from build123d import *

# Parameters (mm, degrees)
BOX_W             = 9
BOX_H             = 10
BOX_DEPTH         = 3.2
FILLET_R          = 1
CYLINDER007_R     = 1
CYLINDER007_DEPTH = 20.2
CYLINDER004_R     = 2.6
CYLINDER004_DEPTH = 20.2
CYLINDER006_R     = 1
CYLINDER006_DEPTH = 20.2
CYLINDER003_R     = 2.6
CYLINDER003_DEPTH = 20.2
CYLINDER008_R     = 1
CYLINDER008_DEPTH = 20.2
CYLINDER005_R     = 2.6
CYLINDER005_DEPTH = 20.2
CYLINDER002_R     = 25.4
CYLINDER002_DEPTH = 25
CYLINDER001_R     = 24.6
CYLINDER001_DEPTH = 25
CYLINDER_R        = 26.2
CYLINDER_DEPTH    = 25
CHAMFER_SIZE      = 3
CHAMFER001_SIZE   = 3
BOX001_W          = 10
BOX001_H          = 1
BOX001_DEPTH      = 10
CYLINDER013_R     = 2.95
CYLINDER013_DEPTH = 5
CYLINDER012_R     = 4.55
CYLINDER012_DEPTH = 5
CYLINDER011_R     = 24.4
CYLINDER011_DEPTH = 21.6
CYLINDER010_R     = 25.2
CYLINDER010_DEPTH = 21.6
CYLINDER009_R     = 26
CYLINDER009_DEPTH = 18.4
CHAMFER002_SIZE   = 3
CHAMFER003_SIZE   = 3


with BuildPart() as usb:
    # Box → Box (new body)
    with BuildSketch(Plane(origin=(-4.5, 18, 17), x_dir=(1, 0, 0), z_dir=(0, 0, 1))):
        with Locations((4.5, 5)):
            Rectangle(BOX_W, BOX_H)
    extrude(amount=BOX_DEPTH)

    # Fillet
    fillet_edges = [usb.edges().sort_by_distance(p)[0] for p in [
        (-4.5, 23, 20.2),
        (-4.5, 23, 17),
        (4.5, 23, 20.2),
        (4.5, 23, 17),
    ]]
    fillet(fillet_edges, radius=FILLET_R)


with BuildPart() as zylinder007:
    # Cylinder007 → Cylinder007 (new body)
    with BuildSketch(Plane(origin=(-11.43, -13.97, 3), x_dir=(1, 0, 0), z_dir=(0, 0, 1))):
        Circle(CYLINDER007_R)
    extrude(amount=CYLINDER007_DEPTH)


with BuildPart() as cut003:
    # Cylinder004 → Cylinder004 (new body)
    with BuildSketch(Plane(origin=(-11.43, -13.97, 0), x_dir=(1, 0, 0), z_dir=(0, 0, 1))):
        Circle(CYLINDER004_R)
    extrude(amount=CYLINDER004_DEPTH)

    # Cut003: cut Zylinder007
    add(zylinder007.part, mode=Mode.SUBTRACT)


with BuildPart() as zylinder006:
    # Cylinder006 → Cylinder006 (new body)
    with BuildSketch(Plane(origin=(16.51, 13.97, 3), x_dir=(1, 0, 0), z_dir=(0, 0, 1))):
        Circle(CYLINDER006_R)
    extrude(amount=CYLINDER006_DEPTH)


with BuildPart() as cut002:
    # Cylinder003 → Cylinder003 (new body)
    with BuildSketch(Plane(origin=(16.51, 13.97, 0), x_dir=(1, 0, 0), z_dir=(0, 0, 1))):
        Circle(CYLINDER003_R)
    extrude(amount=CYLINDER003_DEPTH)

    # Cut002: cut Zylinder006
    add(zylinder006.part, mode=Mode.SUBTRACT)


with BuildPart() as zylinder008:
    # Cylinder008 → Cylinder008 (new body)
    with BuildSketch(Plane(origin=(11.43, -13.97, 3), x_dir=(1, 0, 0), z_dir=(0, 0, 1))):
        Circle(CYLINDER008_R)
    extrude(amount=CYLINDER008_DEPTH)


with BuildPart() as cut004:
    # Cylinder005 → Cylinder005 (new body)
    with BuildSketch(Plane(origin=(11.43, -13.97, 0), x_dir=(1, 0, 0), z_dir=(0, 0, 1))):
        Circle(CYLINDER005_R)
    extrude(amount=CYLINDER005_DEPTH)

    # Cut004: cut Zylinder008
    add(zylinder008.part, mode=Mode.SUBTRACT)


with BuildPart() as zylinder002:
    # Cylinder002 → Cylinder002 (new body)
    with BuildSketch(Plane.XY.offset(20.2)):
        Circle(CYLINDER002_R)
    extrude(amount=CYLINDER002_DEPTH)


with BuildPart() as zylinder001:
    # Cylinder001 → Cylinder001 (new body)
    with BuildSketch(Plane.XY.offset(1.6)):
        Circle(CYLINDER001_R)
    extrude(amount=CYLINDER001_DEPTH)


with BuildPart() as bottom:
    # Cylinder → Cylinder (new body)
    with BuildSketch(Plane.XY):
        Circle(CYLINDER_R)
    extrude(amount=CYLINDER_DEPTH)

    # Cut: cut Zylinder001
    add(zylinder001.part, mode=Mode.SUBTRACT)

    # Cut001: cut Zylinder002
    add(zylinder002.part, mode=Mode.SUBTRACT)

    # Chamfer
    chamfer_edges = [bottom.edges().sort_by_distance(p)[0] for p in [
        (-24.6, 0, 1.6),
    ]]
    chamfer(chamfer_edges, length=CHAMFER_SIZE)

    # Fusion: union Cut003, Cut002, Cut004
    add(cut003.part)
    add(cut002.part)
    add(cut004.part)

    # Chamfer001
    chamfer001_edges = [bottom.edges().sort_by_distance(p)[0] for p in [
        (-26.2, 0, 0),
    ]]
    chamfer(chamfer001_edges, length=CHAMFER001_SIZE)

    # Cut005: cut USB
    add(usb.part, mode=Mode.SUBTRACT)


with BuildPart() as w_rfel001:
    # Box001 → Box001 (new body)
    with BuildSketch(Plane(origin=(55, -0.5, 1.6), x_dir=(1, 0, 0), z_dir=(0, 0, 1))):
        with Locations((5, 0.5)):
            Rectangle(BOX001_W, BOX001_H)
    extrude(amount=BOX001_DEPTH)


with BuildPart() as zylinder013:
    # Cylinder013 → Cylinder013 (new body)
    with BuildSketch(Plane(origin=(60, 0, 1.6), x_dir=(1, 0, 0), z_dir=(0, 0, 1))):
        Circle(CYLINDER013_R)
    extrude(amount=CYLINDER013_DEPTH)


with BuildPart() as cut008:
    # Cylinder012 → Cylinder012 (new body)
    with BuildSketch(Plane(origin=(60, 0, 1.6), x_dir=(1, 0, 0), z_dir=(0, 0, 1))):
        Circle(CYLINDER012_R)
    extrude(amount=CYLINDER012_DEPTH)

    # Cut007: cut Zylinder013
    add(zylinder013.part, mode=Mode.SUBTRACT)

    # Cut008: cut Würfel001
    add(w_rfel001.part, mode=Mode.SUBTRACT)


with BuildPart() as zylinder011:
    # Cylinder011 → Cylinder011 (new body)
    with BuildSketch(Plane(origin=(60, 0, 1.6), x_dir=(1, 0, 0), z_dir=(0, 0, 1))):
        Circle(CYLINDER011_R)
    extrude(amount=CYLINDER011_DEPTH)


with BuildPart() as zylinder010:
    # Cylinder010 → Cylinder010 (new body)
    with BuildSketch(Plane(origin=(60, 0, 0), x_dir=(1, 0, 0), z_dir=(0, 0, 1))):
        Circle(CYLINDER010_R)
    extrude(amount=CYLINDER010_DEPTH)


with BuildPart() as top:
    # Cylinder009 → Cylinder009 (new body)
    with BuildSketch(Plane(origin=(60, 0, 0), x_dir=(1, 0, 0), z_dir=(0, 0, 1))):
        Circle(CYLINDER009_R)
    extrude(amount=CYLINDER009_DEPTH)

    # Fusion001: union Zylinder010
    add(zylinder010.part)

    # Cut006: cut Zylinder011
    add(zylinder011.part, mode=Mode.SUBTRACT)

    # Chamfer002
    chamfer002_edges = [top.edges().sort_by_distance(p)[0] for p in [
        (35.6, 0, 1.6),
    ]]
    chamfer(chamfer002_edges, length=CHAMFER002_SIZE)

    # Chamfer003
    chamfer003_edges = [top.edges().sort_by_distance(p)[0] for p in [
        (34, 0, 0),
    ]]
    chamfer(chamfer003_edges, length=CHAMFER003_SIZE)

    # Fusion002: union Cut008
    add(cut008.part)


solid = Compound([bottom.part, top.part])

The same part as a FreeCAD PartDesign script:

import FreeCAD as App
import Part
import Sketcher
from FreeCAD import Vector
Q = App.Units.Quantity


def edges_at(feature, points):
    """Names of the edges that pass closest to the given points."""
    edges = feature.Shape.Edges
    near = lambda p: min(range(len(edges)), key=lambda i: edges[i].distToShape(Part.Vertex(*p))[0])
    return sorted({f"Edge{near(p) + 1}" for p in points})


def add_polygon(sketch, points):
    """Adds a closed chain of lines whose ends are joined by coincident constraints."""
    first, n = sketch.GeometryCount, len(points)
    for a, b in zip(points, points[1:] + points[:1]):
        sketch.addGeometry(Part.LineSegment(App.Vector(*a, 0), App.Vector(*b, 0)), False)
    for i in range(n):
        sketch.addConstraint(Sketcher.Constraint("Coincident", first + i, 2, first + (i + 1) % n, 1))

doc = App.newDocument("Part")
body = doc.addObject("PartDesign::Body", "Body")

# Sketch on XY plane
sketch1 = doc.addObject("Sketcher::SketchObject", "Sketch")
body.addObject(sketch1)
sketch1.AttachmentSupport = (doc.XY_Plane, [""])
sketch1.MapMode = "FlatFace"
sketch1.AttachmentOffset = App.Placement(Vector(0, 0, 17), App.Rotation())
add_polygon(sketch1, [(-4, 28), (-4, 18), (4, 18), (4, 28)])  # lines 0-3
sketch1.addConstraint([
    Sketcher.Constraint("Vertical", 0),
    Sketcher.Constraint("Horizontal", 1),
    Sketcher.Constraint("Vertical", 2),
    Sketcher.Constraint("Horizontal", 3),
    Sketcher.Constraint("DistanceX", 1, 1, 1, 2, Q("9 mm")),
    Sketcher.Constraint("DistanceY", 0, 2, 0, 1, Q("10 mm")),
    Sketcher.Constraint("DistanceY", -1, 1, 0, 2, Q("18 mm")),
    Sketcher.Constraint("DistanceX", 0, 2, -1, 1, Q("4.5 mm")),
])
pad1 = doc.addObject("PartDesign::Pad", "Pad")
body.addObject(pad1)
pad1.Profile = sketch1
pad1.Length = 3.2
doc.recompute()

fillet = doc.addObject("PartDesign::Fillet", "Fillet")
body.addObject(fillet)
fillet.Base = (pad1, edges_at(pad1, [
    (-4.5, 23, 20.2),
    (-4.5, 23, 17),
    (4.5, 23, 20.2),
    (4.5, 23, 17),
]))
fillet.Radius = 1
body2 = doc.addObject("PartDesign::Body", "Body001")

# Sketch on XY plane
sketch2 = doc.addObject("Sketcher::SketchObject", "Sketch001")
body2.addObject(sketch2)
sketch2.AttachmentSupport = (doc.getObject("XY_Plane001"), [""])
sketch2.MapMode = "FlatFace"
sketch2.AttachmentOffset = App.Placement(Vector(0, 0, 3), App.Rotation())
sketch2.addGeometry(Part.Circle(Vector(-11.4, -14, 0), Vector(0, 0, 1), 1), False)
sketch2.addConstraint([
    Sketcher.Constraint("Diameter", 0, Q("2 mm")),
    Sketcher.Constraint("DistanceX", 0, 3, -1, 1, Q("11.43 mm")),
    Sketcher.Constraint("DistanceY", 0, 3, -1, 1, Q("13.97 mm")),
])
pad2 = doc.addObject("PartDesign::Pad", "Pad001")
body2.addObject(pad2)
pad2.Profile = sketch2
pad2.Length = 20.2
body3 = doc.addObject("PartDesign::Body", "Body002")

# Sketch on XY plane
sketch3 = doc.addObject("Sketcher::SketchObject", "Sketch002")
body3.addObject(sketch3)
sketch3.AttachmentSupport = (doc.getObject("XY_Plane002"), [""])
sketch3.MapMode = "FlatFace"
sketch3.addGeometry(Part.Circle(Vector(-11.4, -14, 0), Vector(0, 0, 1), 2.6), False)
sketch3.addConstraint([
    Sketcher.Constraint("Diameter", 0, Q("5.2 mm")),
    Sketcher.Constraint("DistanceX", 0, 3, -1, 1, Q("11.43 mm")),
    Sketcher.Constraint("DistanceY", 0, 3, -1, 1, Q("13.97 mm")),
])
pad3 = doc.addObject("PartDesign::Pad", "Pad002")
body3.addObject(pad3)
pad3.Profile = sketch3
pad3.Length = 20.2
doc.recompute()

boolean = doc.addObject("PartDesign::Boolean", "Boolean")
body3.addObject(boolean)
boolean.Type = "Cut"
boolean.addObjects([body2])
body4 = doc.addObject("PartDesign::Body", "Body003")

# Sketch on XY plane
sketch4 = doc.addObject("Sketcher::SketchObject", "Sketch003")
body4.addObject(sketch4)
sketch4.AttachmentSupport = (doc.getObject("XY_Plane003"), [""])
sketch4.MapMode = "FlatFace"
sketch4.AttachmentOffset = App.Placement(Vector(0, 0, 3), App.Rotation())
sketch4.addGeometry(Part.Circle(Vector(16.5, 14, 0), Vector(0, 0, 1), 1), False)
sketch4.addConstraint([
    Sketcher.Constraint("Diameter", 0, Q("2 mm")),
    Sketcher.Constraint("DistanceX", -1, 1, 0, 3, Q("16.51 mm")),
    Sketcher.Constraint("DistanceY", -1, 1, 0, 3, Q("13.97 mm")),
])
pad4 = doc.addObject("PartDesign::Pad", "Pad003")
body4.addObject(pad4)
pad4.Profile = sketch4
pad4.Length = 20.2
body5 = doc.addObject("PartDesign::Body", "Body004")

# Sketch on XY plane
sketch5 = doc.addObject("Sketcher::SketchObject", "Sketch004")
body5.addObject(sketch5)
sketch5.AttachmentSupport = (doc.getObject("XY_Plane004"), [""])
sketch5.MapMode = "FlatFace"
sketch5.addGeometry(Part.Circle(Vector(16.5, 14, 0), Vector(0, 0, 1), 2.6), False)
sketch5.addConstraint([
    Sketcher.Constraint("Diameter", 0, Q("5.2 mm")),
    Sketcher.Constraint("DistanceX", -1, 1, 0, 3, Q("16.51 mm")),
    Sketcher.Constraint("DistanceY", -1, 1, 0, 3, Q("13.97 mm")),
])
pad5 = doc.addObject("PartDesign::Pad", "Pad004")
body5.addObject(pad5)
pad5.Profile = sketch5
pad5.Length = 20.2
doc.recompute()

boolean2 = doc.addObject("PartDesign::Boolean", "Boolean001")
body5.addObject(boolean2)
boolean2.Type = "Cut"
boolean2.addObjects([body4])
body6 = doc.addObject("PartDesign::Body", "Body005")

# Sketch on XY plane
sketch6 = doc.addObject("Sketcher::SketchObject", "Sketch005")
body6.addObject(sketch6)
sketch6.AttachmentSupport = (doc.getObject("XY_Plane005"), [""])
sketch6.MapMode = "FlatFace"
sketch6.AttachmentOffset = App.Placement(Vector(0, 0, 3), App.Rotation())
sketch6.addGeometry(Part.Circle(Vector(11.4, -14, 0), Vector(0, 0, 1), 1), False)
sketch6.addConstraint([
    Sketcher.Constraint("Diameter", 0, Q("2 mm")),
    Sketcher.Constraint("DistanceX", -1, 1, 0, 3, Q("11.43 mm")),
    Sketcher.Constraint("DistanceY", 0, 3, -1, 1, Q("13.97 mm")),
])
pad6 = doc.addObject("PartDesign::Pad", "Pad005")
body6.addObject(pad6)
pad6.Profile = sketch6
pad6.Length = 20.2
body7 = doc.addObject("PartDesign::Body", "Body006")

# Sketch on XY plane
sketch7 = doc.addObject("Sketcher::SketchObject", "Sketch006")
body7.addObject(sketch7)
sketch7.AttachmentSupport = (doc.getObject("XY_Plane006"), [""])
sketch7.MapMode = "FlatFace"
sketch7.addGeometry(Part.Circle(Vector(11.4, -14, 0), Vector(0, 0, 1), 2.6), False)
sketch7.addConstraint([
    Sketcher.Constraint("Diameter", 0, Q("5.2 mm")),
    Sketcher.Constraint("DistanceX", -1, 1, 0, 3, Q("11.43 mm")),
    Sketcher.Constraint("DistanceY", 0, 3, -1, 1, Q("13.97 mm")),
])
pad7 = doc.addObject("PartDesign::Pad", "Pad006")
body7.addObject(pad7)
pad7.Profile = sketch7
pad7.Length = 20.2
doc.recompute()

boolean3 = doc.addObject("PartDesign::Boolean", "Boolean002")
body7.addObject(boolean3)
boolean3.Type = "Cut"
boolean3.addObjects([body6])
body8 = doc.addObject("PartDesign::Body", "Body007")

# Sketch on XY plane
sketch8 = doc.addObject("Sketcher::SketchObject", "Sketch007")
body8.addObject(sketch8)
sketch8.AttachmentSupport = (doc.getObject("XY_Plane007"), [""])
sketch8.MapMode = "FlatFace"
sketch8.AttachmentOffset = App.Placement(Vector(0, 0, 20.2), App.Rotation())
sketch8.addGeometry(Part.Circle(Vector(0, 0, 0), Vector(0, 0, 1), 25), False)
sketch8.addConstraint([
    Sketcher.Constraint("Coincident", 0, 3, -1, 1),
    Sketcher.Constraint("Diameter", 0, Q("50.8 mm")),
])
pad8 = doc.addObject("PartDesign::Pad", "Pad007")
body8.addObject(pad8)
pad8.Profile = sketch8
pad8.Length = 25
body9 = doc.addObject("PartDesign::Body", "Body008")

# Sketch on XY plane
sketch9 = doc.addObject("Sketcher::SketchObject", "Sketch008")
body9.addObject(sketch9)
sketch9.AttachmentSupport = (doc.getObject("XY_Plane008"), [""])
sketch9.MapMode = "FlatFace"
sketch9.AttachmentOffset = App.Placement(Vector(0, 0, 1.6), App.Rotation())
sketch9.addGeometry(Part.Circle(Vector(0, 0, 0), Vector(0, 0, 1), 25), False)
sketch9.addConstraint([
    Sketcher.Constraint("Coincident", 0, 3, -1, 1),
    Sketcher.Constraint("Diameter", 0, Q("49.2 mm")),
])
pad9 = doc.addObject("PartDesign::Pad", "Pad008")
body9.addObject(pad9)
pad9.Profile = sketch9
pad9.Length = 25
body10 = doc.addObject("PartDesign::Body", "Body009")

# Sketch on XY plane
sketch10 = doc.addObject("Sketcher::SketchObject", "Sketch009")
body10.addObject(sketch10)
sketch10.AttachmentSupport = (doc.getObject("XY_Plane009"), [""])
sketch10.MapMode = "FlatFace"
sketch10.addGeometry(Part.Circle(Vector(0, 0, 0), Vector(0, 0, 1), 26), False)
sketch10.addConstraint([
    Sketcher.Constraint("Coincident", 0, 3, -1, 1),
    Sketcher.Constraint("Diameter", 0, Q("52.4 mm")),
])
pad10 = doc.addObject("PartDesign::Pad", "Pad009")
body10.addObject(pad10)
pad10.Profile = sketch10
pad10.Length = 25
doc.recompute()

boolean4 = doc.addObject("PartDesign::Boolean", "Boolean003")
body10.addObject(boolean4)
boolean4.Type = "Cut"
boolean4.addObjects([body9])
doc.recompute()

boolean5 = doc.addObject("PartDesign::Boolean", "Boolean004")
body10.addObject(boolean5)
boolean5.Type = "Cut"
boolean5.addObjects([body8])
doc.recompute()

chamfer = doc.addObject("PartDesign::Chamfer", "Chamfer")
body10.addObject(chamfer)
chamfer.Base = (boolean5, edges_at(boolean5, [(-24.6, 0, 1.6)]))
chamfer.Size = 3
doc.recompute()

boolean6 = doc.addObject("PartDesign::Boolean", "Boolean005")
body10.addObject(boolean6)
boolean6.Type = "Fuse"
boolean6.addObjects([body3])
doc.recompute()

boolean7 = doc.addObject("PartDesign::Boolean", "Boolean006")
body10.addObject(boolean7)
boolean7.Type = "Fuse"
boolean7.addObjects([body5])
doc.recompute()

boolean8 = doc.addObject("PartDesign::Boolean", "Boolean007")
body10.addObject(boolean8)
boolean8.Type = "Fuse"
boolean8.addObjects([body7])
doc.recompute()

chamfer2 = doc.addObject("PartDesign::Chamfer", "Chamfer001")
body10.addObject(chamfer2)
chamfer2.Base = (boolean8, edges_at(boolean8, [(-26.2, 0, 0)]))
chamfer2.Size = 3
doc.recompute()

boolean9 = doc.addObject("PartDesign::Boolean", "Boolean008")
body10.addObject(boolean9)
boolean9.Type = "Cut"
boolean9.addObjects([body])
body11 = doc.addObject("PartDesign::Body", "Body010")

# Sketch on XY plane
sketch11 = doc.addObject("Sketcher::SketchObject", "Sketch010")
body11.addObject(sketch11)
sketch11.AttachmentSupport = (doc.getObject("XY_Plane010"), [""])
sketch11.MapMode = "FlatFace"
sketch11.AttachmentOffset = App.Placement(Vector(0, 0, 1.6), App.Rotation())
add_polygon(sketch11, [(55, 0.5), (55, -0.5), (65, -0.5), (65, 0.5)])  # lines 0-3
sketch11.addConstraint([
    Sketcher.Constraint("Vertical", 0),
    Sketcher.Constraint("Horizontal", 1),
    Sketcher.Constraint("Vertical", 2),
    Sketcher.Constraint("Horizontal", 3),
    Sketcher.Constraint("DistanceX", 1, 1, 1, 2, Q("10 mm")),
    Sketcher.Constraint("DistanceY", 0, 2, 0, 1, Q("1 mm")),
    Sketcher.Constraint("DistanceX", -1, 1, 0, 2, Q("55 mm")),
    Sketcher.Constraint("DistanceY", 0, 2, -1, 1, Q("0.5 mm")),
])
pad11 = doc.addObject("PartDesign::Pad", "Pad010")
body11.addObject(pad11)
pad11.Profile = sketch11
pad11.Length = 10
body12 = doc.addObject("PartDesign::Body", "Body011")

# Sketch on XY plane
sketch12 = doc.addObject("Sketcher::SketchObject", "Sketch011")
body12.addObject(sketch12)
sketch12.AttachmentSupport = (doc.getObject("XY_Plane011"), [""])
sketch12.MapMode = "FlatFace"
sketch12.AttachmentOffset = App.Placement(Vector(0, 0, 1.6), App.Rotation())
sketch12.addGeometry(Part.Circle(Vector(60, 0, 0), Vector(0, 0, 1), 3), False)
sketch12.addConstraint([
    Sketcher.Constraint("PointOnObject", 0, 3, -1),
    Sketcher.Constraint("Diameter", 0, Q("5.9 mm")),
    Sketcher.Constraint("DistanceX", -1, 1, 0, 3, Q("60 mm")),
])
pad12 = doc.addObject("PartDesign::Pad", "Pad011")
body12.addObject(pad12)
pad12.Profile = sketch12
pad12.Length = 5
body13 = doc.addObject("PartDesign::Body", "Body012")
body13.AllowCompound = True

# Sketch on XY plane
sketch13 = doc.addObject("Sketcher::SketchObject", "Sketch012")
body13.addObject(sketch13)
sketch13.AttachmentSupport = (doc.getObject("XY_Plane012"), [""])
sketch13.MapMode = "FlatFace"
sketch13.AttachmentOffset = App.Placement(Vector(0, 0, 1.6), App.Rotation())
sketch13.addGeometry(Part.Circle(Vector(60, 0, 0), Vector(0, 0, 1), 4.5), False)
sketch13.addConstraint([
    Sketcher.Constraint("PointOnObject", 0, 3, -1),
    Sketcher.Constraint("Diameter", 0, Q("9.1 mm")),
    Sketcher.Constraint("DistanceX", -1, 1, 0, 3, Q("60 mm")),
])
pad13 = doc.addObject("PartDesign::Pad", "Pad012")
body13.addObject(pad13)
pad13.Profile = sketch13
pad13.Length = 5
doc.recompute()

boolean10 = doc.addObject("PartDesign::Boolean", "Boolean009")
body13.addObject(boolean10)
boolean10.Type = "Cut"
boolean10.addObjects([body12])
doc.recompute()

boolean11 = doc.addObject("PartDesign::Boolean", "Boolean010")
body13.addObject(boolean11)
boolean11.Type = "Cut"
boolean11.addObjects([body11])
body14 = doc.addObject("PartDesign::Body", "Body013")

# Sketch on XY plane
sketch14 = doc.addObject("Sketcher::SketchObject", "Sketch013")
body14.addObject(sketch14)
sketch14.AttachmentSupport = (doc.getObject("XY_Plane013"), [""])
sketch14.MapMode = "FlatFace"
sketch14.AttachmentOffset = App.Placement(Vector(0, 0, 1.6), App.Rotation())
sketch14.addGeometry(Part.Circle(Vector(60, 0, 0), Vector(0, 0, 1), 24), False)
sketch14.addConstraint([
    Sketcher.Constraint("PointOnObject", 0, 3, -1),
    Sketcher.Constraint("Diameter", 0, Q("48.8 mm")),
    Sketcher.Constraint("DistanceX", -1, 1, 0, 3, Q("60 mm")),
])
pad14 = doc.addObject("PartDesign::Pad", "Pad013")
body14.addObject(pad14)
pad14.Profile = sketch14
pad14.Length = 21.6
body15 = doc.addObject("PartDesign::Body", "Body014")

# Sketch on XY plane
sketch15 = doc.addObject("Sketcher::SketchObject", "Sketch014")
body15.addObject(sketch15)
sketch15.AttachmentSupport = (doc.getObject("XY_Plane014"), [""])
sketch15.MapMode = "FlatFace"
sketch15.addGeometry(Part.Circle(Vector(60, 0, 0), Vector(0, 0, 1), 25), False)
sketch15.addConstraint([
    Sketcher.Constraint("PointOnObject", 0, 3, -1),
    Sketcher.Constraint("Diameter", 0, Q("50.4 mm")),
    Sketcher.Constraint("DistanceX", -1, 1, 0, 3, Q("60 mm")),
])
pad15 = doc.addObject("PartDesign::Pad", "Pad014")
body15.addObject(pad15)
pad15.Profile = sketch15
pad15.Length = 21.6
body16 = doc.addObject("PartDesign::Body", "Body015")

# Sketch on XY plane
sketch16 = doc.addObject("Sketcher::SketchObject", "Sketch015")
body16.addObject(sketch16)
sketch16.AttachmentSupport = (doc.getObject("XY_Plane015"), [""])
sketch16.MapMode = "FlatFace"
sketch16.addGeometry(Part.Circle(Vector(60, 0, 0), Vector(0, 0, 1), 26), False)
sketch16.addConstraint([
    Sketcher.Constraint("PointOnObject", 0, 3, -1),
    Sketcher.Constraint("Diameter", 0, Q("52 mm")),
    Sketcher.Constraint("DistanceX", -1, 1, 0, 3, Q("60 mm")),
])
pad16 = doc.addObject("PartDesign::Pad", "Pad015")
body16.addObject(pad16)
pad16.Profile = sketch16
pad16.Length = 18.4
doc.recompute()

boolean12 = doc.addObject("PartDesign::Boolean", "Boolean011")
body16.addObject(boolean12)
boolean12.Type = "Fuse"
boolean12.addObjects([body15])
doc.recompute()

boolean13 = doc.addObject("PartDesign::Boolean", "Boolean012")
body16.addObject(boolean13)
boolean13.Type = "Cut"
boolean13.addObjects([body14])
doc.recompute()

chamfer3 = doc.addObject("PartDesign::Chamfer", "Chamfer002")
body16.addObject(chamfer3)
chamfer3.Base = (boolean13, edges_at(boolean13, [(35.6, 0, 1.6)]))
chamfer3.Size = 3
doc.recompute()

chamfer4 = doc.addObject("PartDesign::Chamfer", "Chamfer003")
body16.addObject(chamfer4)
chamfer4.Base = (chamfer3, edges_at(chamfer3, [(34, 0, 0)]))
chamfer4.Size = 3
doc.recompute()

boolean14 = doc.addObject("PartDesign::Boolean", "Boolean013")
body16.addObject(boolean14)
boolean14.Type = "Fuse"
boolean14.addObjects([body13])

doc.recompute()
